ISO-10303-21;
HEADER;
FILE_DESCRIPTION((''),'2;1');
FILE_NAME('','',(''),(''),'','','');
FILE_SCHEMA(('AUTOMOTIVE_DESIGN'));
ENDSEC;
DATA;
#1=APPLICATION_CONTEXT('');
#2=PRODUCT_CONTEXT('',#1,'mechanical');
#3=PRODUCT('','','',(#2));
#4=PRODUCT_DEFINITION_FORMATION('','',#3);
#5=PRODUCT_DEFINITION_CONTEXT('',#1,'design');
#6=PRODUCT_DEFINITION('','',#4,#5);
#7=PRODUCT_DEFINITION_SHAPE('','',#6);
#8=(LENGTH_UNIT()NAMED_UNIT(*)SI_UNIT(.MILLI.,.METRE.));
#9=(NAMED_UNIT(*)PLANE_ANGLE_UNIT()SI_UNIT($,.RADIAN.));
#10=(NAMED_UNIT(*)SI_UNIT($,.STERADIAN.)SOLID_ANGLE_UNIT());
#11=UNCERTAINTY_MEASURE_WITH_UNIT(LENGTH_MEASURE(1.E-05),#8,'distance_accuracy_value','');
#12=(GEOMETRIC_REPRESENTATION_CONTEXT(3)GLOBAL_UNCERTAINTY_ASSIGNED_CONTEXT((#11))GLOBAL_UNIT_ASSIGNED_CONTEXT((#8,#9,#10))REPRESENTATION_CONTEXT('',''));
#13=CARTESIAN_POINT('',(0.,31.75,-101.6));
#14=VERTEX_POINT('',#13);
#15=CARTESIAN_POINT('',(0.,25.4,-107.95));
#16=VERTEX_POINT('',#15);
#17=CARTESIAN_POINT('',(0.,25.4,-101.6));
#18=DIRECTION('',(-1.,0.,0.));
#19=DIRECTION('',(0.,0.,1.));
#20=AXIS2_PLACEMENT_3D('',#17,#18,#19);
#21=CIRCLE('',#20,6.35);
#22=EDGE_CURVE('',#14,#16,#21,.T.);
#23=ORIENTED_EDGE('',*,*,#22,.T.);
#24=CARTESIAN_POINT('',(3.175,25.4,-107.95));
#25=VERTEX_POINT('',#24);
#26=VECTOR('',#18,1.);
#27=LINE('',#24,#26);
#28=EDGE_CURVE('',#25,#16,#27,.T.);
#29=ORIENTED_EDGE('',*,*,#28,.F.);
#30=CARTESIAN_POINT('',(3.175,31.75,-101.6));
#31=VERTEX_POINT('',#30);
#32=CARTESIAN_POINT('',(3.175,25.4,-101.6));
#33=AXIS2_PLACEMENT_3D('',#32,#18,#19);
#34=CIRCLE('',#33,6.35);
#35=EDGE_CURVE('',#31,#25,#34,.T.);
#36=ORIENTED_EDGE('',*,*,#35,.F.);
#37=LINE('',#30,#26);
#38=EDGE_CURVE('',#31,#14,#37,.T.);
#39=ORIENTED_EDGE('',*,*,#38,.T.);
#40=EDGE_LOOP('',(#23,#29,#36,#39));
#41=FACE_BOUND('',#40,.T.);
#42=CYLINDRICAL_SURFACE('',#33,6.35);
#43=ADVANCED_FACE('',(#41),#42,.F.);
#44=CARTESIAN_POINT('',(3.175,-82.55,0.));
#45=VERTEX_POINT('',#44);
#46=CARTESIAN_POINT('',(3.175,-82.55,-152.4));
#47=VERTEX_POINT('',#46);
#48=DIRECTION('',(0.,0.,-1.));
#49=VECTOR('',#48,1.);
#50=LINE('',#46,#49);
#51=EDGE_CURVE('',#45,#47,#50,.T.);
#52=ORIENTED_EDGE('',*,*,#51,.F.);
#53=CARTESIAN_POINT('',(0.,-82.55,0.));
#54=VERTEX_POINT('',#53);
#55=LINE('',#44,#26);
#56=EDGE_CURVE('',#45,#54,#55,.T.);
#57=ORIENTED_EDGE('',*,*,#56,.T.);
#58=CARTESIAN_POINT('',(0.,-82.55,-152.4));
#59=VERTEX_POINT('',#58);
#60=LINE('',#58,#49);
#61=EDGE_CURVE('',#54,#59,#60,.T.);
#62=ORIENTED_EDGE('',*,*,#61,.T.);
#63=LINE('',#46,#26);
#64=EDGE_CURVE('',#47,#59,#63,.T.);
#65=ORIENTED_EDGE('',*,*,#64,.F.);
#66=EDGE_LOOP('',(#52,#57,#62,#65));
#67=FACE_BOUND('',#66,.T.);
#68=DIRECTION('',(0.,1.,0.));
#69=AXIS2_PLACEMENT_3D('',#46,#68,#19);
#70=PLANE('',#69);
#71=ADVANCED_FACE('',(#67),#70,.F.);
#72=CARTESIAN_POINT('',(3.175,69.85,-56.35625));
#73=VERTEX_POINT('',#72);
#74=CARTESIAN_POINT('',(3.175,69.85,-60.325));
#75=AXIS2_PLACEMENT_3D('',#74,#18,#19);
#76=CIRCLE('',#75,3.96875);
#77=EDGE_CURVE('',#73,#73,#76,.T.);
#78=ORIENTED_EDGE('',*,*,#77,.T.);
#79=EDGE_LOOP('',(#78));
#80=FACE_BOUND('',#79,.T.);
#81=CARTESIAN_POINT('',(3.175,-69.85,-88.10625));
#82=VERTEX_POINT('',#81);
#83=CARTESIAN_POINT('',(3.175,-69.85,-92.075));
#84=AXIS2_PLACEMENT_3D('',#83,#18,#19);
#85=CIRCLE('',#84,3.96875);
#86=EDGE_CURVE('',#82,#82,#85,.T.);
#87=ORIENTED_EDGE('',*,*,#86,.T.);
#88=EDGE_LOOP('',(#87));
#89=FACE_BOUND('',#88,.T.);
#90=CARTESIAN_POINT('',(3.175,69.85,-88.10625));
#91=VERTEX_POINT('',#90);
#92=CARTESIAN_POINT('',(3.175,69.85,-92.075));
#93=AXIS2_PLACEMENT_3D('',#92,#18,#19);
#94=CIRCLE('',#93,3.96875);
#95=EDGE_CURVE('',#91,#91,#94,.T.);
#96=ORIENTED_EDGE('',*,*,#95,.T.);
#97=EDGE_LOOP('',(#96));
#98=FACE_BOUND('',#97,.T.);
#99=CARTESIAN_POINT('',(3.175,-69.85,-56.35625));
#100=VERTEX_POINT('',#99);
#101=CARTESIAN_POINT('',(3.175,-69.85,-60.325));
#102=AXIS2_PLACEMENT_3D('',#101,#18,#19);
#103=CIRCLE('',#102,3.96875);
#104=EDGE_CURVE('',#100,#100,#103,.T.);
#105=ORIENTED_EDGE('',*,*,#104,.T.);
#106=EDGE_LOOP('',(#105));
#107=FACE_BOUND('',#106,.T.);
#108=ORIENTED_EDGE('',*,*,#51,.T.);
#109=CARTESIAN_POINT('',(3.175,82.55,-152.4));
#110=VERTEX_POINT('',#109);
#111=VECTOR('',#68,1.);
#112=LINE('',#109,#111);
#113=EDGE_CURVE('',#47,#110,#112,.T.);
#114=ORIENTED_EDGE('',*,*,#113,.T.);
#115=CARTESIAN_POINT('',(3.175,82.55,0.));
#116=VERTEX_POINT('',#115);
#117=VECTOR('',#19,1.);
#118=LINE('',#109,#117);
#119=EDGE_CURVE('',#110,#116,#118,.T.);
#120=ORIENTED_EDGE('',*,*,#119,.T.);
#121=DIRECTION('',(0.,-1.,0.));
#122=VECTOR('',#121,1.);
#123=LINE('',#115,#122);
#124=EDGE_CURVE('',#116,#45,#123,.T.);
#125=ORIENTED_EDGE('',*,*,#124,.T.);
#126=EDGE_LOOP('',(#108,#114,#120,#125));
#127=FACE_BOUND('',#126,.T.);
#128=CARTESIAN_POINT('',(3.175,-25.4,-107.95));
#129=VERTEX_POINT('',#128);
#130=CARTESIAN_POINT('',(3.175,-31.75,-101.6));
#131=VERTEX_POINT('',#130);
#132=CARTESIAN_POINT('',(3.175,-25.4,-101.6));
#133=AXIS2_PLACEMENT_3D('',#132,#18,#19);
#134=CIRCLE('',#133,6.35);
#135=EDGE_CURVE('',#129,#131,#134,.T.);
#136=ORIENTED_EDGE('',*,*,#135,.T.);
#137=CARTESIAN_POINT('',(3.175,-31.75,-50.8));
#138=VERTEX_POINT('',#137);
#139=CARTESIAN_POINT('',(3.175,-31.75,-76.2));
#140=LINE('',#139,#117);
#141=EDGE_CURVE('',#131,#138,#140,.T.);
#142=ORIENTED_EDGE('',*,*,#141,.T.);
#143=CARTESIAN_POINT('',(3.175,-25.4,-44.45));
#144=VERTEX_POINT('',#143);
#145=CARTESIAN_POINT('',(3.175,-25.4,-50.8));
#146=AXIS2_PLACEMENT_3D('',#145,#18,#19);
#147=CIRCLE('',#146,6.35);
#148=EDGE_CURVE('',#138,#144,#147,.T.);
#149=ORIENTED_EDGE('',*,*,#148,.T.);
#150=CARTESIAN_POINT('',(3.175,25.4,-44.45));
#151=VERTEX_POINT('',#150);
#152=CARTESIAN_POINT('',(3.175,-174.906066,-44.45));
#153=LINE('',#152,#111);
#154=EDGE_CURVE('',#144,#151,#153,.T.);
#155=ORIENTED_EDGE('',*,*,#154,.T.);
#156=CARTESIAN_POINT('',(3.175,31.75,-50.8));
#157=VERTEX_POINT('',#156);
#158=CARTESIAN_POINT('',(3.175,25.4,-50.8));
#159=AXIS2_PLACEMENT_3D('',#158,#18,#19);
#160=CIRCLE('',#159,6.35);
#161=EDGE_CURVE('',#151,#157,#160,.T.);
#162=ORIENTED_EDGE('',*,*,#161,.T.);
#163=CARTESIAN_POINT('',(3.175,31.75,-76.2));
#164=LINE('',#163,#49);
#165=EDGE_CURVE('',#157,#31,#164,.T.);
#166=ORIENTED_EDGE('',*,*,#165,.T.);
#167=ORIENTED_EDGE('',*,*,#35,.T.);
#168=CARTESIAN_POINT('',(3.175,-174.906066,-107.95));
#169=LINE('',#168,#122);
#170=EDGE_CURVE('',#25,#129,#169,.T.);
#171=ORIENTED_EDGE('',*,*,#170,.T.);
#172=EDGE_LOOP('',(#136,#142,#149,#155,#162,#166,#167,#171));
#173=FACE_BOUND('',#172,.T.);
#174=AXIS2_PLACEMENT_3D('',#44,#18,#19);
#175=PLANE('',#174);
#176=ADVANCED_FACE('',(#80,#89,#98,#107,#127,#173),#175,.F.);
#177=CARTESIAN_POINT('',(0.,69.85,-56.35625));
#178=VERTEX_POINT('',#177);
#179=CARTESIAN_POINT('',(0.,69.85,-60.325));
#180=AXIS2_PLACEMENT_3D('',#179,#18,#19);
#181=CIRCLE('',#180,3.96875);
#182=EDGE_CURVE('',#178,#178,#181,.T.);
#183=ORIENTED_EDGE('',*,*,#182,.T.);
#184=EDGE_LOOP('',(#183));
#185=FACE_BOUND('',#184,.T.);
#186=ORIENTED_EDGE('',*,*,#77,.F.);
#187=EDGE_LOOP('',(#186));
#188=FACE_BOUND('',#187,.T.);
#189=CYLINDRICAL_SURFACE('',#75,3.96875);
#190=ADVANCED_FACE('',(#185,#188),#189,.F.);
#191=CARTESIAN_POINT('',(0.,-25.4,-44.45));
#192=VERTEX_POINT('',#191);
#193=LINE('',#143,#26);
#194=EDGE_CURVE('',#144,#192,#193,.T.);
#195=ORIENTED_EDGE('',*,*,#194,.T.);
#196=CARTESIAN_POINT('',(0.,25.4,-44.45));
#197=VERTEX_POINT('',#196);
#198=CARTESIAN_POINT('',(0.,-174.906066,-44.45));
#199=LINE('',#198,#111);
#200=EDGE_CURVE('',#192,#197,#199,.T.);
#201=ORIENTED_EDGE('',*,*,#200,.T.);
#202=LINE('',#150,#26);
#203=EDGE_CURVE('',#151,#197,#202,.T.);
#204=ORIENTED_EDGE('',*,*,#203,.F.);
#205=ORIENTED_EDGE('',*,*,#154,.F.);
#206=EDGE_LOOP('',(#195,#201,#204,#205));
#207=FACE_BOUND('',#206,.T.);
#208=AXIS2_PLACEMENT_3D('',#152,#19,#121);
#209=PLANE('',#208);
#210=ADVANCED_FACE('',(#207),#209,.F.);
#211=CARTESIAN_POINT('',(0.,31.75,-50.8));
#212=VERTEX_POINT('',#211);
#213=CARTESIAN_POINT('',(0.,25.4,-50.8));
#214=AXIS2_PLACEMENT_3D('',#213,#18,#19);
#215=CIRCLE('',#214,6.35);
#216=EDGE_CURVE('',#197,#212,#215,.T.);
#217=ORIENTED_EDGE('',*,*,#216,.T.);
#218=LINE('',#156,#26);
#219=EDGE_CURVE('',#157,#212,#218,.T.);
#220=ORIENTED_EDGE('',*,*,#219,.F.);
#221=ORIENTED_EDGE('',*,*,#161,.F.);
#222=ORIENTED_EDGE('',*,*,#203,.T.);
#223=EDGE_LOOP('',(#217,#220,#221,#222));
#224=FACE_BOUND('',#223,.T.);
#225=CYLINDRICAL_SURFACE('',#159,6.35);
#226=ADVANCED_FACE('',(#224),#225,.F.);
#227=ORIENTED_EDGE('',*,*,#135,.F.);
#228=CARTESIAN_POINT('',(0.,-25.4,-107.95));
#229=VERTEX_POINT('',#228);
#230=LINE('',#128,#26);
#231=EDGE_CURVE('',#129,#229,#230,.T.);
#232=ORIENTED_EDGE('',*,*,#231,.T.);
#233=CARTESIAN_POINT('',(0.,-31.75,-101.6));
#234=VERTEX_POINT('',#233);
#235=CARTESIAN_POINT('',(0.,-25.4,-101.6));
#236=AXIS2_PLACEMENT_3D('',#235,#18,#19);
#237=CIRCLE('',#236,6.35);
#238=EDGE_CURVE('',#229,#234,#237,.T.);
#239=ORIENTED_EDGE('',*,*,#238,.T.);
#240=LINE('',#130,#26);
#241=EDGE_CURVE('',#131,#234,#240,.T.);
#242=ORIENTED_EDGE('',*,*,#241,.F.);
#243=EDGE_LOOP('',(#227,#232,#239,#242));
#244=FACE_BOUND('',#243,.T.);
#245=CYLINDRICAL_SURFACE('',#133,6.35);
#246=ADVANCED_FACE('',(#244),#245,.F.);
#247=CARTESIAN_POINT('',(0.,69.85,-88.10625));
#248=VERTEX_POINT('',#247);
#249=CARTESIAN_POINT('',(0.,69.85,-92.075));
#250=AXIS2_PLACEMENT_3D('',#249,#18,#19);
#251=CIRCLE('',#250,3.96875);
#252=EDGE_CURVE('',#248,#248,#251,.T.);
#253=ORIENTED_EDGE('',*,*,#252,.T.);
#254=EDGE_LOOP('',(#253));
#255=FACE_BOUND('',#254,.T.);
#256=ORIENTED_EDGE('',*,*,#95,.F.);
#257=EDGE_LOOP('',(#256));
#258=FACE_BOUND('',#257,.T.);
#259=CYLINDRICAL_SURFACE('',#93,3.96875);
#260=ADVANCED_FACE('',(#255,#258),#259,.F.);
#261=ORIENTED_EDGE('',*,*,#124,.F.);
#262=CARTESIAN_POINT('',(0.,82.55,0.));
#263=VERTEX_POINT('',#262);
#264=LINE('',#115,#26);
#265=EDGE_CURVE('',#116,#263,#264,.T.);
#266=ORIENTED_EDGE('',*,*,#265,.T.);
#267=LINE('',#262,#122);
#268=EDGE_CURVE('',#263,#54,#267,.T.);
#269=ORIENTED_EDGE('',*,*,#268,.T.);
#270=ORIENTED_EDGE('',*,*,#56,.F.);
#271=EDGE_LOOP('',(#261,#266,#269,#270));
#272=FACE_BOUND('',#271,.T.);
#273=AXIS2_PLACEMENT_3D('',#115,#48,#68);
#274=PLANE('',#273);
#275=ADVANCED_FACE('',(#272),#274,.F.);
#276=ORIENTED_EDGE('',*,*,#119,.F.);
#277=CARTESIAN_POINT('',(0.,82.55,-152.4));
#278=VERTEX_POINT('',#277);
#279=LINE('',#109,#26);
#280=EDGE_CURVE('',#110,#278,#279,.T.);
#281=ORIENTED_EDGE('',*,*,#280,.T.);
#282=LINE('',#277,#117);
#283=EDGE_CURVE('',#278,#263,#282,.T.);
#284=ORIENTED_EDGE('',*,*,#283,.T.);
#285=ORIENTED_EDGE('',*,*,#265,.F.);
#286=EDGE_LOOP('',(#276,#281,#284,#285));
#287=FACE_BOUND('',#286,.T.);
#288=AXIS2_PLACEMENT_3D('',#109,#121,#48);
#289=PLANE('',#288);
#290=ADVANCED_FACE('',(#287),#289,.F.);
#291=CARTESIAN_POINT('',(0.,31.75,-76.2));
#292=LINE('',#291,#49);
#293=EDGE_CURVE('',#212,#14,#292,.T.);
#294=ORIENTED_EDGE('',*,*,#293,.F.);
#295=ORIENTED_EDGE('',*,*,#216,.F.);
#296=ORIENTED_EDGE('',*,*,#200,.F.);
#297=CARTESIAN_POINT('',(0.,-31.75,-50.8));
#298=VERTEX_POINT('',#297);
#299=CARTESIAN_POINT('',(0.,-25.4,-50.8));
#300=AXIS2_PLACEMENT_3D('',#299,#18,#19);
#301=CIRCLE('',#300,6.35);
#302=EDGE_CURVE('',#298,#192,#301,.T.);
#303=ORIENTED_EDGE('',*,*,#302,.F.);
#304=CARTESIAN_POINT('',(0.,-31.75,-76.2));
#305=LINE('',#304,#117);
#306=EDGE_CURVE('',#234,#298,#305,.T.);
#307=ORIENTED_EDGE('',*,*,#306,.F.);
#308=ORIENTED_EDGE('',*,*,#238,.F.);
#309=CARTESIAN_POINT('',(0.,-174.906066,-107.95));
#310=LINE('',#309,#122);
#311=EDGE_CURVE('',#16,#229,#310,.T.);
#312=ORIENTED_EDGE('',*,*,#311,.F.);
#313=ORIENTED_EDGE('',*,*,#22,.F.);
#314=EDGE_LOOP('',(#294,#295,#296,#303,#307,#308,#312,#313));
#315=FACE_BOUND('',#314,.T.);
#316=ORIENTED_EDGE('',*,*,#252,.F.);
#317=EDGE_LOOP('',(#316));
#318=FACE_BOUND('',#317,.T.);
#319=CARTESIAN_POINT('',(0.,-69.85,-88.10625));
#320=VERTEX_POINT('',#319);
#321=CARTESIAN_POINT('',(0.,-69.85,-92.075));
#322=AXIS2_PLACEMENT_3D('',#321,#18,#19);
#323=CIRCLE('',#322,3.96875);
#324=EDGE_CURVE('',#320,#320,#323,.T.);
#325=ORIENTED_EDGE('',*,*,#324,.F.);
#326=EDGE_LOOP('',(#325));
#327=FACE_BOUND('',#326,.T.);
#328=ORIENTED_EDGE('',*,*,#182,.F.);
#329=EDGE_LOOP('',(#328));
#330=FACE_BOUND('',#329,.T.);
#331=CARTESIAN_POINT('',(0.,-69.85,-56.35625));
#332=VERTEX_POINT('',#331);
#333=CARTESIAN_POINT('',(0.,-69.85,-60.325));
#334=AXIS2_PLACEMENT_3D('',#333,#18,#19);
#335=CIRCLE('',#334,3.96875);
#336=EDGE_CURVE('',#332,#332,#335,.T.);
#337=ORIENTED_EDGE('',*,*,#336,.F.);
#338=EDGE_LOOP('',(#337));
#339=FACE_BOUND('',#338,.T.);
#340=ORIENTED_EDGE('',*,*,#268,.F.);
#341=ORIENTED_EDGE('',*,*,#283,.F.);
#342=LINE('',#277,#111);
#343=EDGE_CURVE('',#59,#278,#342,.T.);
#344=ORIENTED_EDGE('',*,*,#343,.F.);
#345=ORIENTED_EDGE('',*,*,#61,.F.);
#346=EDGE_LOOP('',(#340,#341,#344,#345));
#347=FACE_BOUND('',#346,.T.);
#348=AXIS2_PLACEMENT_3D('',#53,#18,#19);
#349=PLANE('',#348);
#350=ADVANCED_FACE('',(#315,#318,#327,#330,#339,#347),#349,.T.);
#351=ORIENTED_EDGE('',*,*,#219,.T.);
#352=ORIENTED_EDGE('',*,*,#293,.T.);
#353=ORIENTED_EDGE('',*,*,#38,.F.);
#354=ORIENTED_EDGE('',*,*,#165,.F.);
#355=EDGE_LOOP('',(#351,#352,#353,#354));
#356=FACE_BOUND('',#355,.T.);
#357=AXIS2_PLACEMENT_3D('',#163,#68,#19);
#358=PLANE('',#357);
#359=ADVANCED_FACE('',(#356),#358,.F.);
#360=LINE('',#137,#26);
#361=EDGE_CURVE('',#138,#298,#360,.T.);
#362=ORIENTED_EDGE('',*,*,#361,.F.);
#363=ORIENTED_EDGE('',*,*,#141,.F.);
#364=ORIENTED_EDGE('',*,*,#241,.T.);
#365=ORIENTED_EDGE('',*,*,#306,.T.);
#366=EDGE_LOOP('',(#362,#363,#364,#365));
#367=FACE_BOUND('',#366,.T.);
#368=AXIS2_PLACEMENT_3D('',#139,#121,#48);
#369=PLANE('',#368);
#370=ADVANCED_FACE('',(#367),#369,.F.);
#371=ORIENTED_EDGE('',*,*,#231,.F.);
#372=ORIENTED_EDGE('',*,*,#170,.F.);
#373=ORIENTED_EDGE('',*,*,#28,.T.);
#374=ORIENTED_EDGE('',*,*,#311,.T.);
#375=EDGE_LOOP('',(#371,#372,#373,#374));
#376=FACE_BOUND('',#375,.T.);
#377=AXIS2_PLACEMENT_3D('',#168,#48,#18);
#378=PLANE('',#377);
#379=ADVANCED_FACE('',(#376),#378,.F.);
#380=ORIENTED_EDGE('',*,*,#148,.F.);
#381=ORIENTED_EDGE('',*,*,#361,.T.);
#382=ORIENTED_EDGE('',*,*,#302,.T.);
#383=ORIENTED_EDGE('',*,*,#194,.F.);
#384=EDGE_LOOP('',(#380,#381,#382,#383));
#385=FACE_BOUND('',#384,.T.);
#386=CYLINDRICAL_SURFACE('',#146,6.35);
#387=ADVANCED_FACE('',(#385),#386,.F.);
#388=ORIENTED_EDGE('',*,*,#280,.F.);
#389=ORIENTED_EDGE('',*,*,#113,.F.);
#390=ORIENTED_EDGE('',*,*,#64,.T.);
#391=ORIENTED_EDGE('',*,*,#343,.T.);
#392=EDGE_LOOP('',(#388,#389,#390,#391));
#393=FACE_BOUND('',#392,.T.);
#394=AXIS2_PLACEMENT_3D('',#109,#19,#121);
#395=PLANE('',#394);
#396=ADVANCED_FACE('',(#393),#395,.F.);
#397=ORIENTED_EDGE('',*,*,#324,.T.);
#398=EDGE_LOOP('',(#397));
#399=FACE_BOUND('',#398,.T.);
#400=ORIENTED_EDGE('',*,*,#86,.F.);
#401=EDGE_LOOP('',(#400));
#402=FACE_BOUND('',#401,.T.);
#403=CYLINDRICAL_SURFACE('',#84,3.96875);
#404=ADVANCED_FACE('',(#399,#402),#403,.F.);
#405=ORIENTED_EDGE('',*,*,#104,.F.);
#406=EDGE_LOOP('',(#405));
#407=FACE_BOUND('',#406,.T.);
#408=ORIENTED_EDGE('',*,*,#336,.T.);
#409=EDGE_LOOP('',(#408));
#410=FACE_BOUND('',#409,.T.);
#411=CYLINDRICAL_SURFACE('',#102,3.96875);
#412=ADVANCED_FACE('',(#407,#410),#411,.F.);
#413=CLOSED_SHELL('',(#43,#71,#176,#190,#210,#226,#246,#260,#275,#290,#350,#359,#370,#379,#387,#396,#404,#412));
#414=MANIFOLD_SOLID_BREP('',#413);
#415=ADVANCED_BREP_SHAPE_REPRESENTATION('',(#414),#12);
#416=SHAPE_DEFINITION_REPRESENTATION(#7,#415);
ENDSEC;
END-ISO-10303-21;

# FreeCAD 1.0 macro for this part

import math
import FreeCAD as App
import Part
import Sketcher

V = App.Vector
Q = App.Units.Quantity

doc = App.newDocument("Part")
body = doc.addObject("PartDesign::Body", "Body")

sketch1 = body.newObject("Sketcher::SketchObject", "Sketch")
sketch1.AttachmentSupport = (doc.getObject("YZ_Plane"), [""])
sketch1.MapMode = "FlatFace"
sketch1.addGeometry(Part.LineSegment(V(83, 0, 0), V(-83, 0, 0)), False)
sketch1.addGeometry(Part.LineSegment(V(-83, 0, 0), V(-83, -152, 0)), False)
sketch1.addGeometry(Part.LineSegment(V(-83, -152, 0), V(83, -152, 0)), False)
sketch1.addGeometry(Part.LineSegment(V(83, -152, 0), V(83, 0, 0)), False)
sketch1.addConstraint(Sketcher.Constraint("Coincident", 0, 2, 1, 1))
sketch1.addConstraint(Sketcher.Constraint("Coincident", 1, 2, 2, 1))
sketch1.addConstraint(Sketcher.Constraint("Coincident", 2, 2, 3, 1))
sketch1.addConstraint(Sketcher.Constraint("Coincident", 3, 2, 0, 1))
sketch1.addConstraint(Sketcher.Constraint("Horizontal", 0))
sketch1.addConstraint(Sketcher.Constraint("Vertical", 1))
sketch1.addConstraint(Sketcher.Constraint("Horizontal", 2))
sketch1.addConstraint(Sketcher.Constraint("Vertical", 3))
sketch1.addConstraint(Sketcher.Constraint("Symmetric", 0, 2, 3, 2, -1, 1))
sketch1.addConstraint(Sketcher.Constraint("DistanceY", 1, 2, 1, 1, Q("6 in")))
sketch1.addConstraint(Sketcher.Constraint("DistanceX", 0, 2, 0, 1, Q("6.5 in")))
pad1 = body.newObject("PartDesign::Pad", "Pad")
pad1.Profile = sketch1
pad1.Length = Q("0.125 in")

sketch2 = body.newObject("Sketcher::SketchObject", "Sketch001")
sketch2.AttachmentSupport = (doc.getObject("YZ_Plane"), [""])
sketch2.MapMode = "FlatFace"
sketch2.addGeometry(Part.LineSegment(V(25, -108, 0), V(-25, -108, 0)), False)
sketch2.addGeometry(Part.ArcOfCircle(Part.Circle(V(-25, -102, 0), V(0, 0, 1), 6), math.radians(180), math.radians(270)), False)
sketch2.addGeometry(Part.LineSegment(V(-32, -102, 0), V(-32, -51, 0)), False)
sketch2.addGeometry(Part.ArcOfCircle(Part.Circle(V(-25, -51, 0), V(0, 0, 1), 6), math.radians(90), math.radians(180)), False)
sketch2.addGeometry(Part.LineSegment(V(-25, -44, 0), V(25, -44, 0)), False)
sketch2.addGeometry(Part.ArcOfCircle(Part.Circle(V(25, -51, 0), V(0, 0, 1), 6), math.radians(0), math.radians(90)), False)
sketch2.addGeometry(Part.LineSegment(V(32, -51, 0), V(32, -102, 0)), False)
sketch2.addGeometry(Part.ArcOfCircle(Part.Circle(V(25, -102, 0), V(0, 0, 1), 6), math.radians(-90), math.radians(0)), False)
sketch2.addConstraint(Sketcher.Constraint("Tangent", 0, 2, 1, 2))
sketch2.addConstraint(Sketcher.Constraint("Tangent", 1, 1, 2, 1))
sketch2.addConstraint(Sketcher.Constraint("Tangent", 2, 2, 3, 2))
sketch2.addConstraint(Sketcher.Constraint("Tangent", 3, 1, 4, 1))
sketch2.addConstraint(Sketcher.Constraint("Tangent", 4, 2, 5, 2))
sketch2.addConstraint(Sketcher.Constraint("Tangent", 5, 1, 6, 1))
sketch2.addConstraint(Sketcher.Constraint("Tangent", 6, 2, 7, 2))
sketch2.addConstraint(Sketcher.Constraint("Tangent", 7, 1, 0, 1))
sketch2.addConstraint(Sketcher.Constraint("Horizontal", 0))
sketch2.addConstraint(Sketcher.Constraint("Vertical", 2))
sketch2.addConstraint(Sketcher.Constraint("Horizontal", 4))
sketch2.addConstraint(Sketcher.Constraint("Vertical", 6))
sketch2.addConstraint(Sketcher.Constraint("Equal", 1, 3))
sketch2.addConstraint(Sketcher.Constraint("Equal", 3, 5))
sketch2.addConstraint(Sketcher.Constraint("Equal", 5, 7))
sketch2.addConstraint(Sketcher.Constraint("Equal", 4, 2))
sketch2.addConstraint(Sketcher.Constraint("DistanceX", 0, 2, 0, 1, Q("2 in")))
sketch2.addConstraint(Sketcher.Constraint("Radius", 1, Q("0.25 in")))
sketch2.addConstraint(Sketcher.Constraint("DistanceX", 1, 3, -1, 1, Q("1 in")))
sketch2.addConstraint(Sketcher.Constraint("DistanceY", 1, 3, -1, 1, Q("4 in")))
pocket1 = body.newObject("PartDesign::Pocket", "Pocket")
pocket1.Profile = sketch2
pocket1.Type = "ThroughAll"
pocket1.Reversed = True

sketch3 = body.newObject("Sketcher::SketchObject", "Sketch002")
sketch3.AttachmentSupport = (doc.getObject("YZ_Plane"), [""])
sketch3.MapMode = "FlatFace"
sketch3.addGeometry(Part.Circle(V(69.8, -60.3, 0), V(0, 0, 1), 4), False)
sketch3.addGeometry(Part.Circle(V(69.8, -92.1, 0), V(0, 0, 1), 4), False)
sketch3.addGeometry(Part.Circle(V(-69.8, -92.1, 0), V(0, 0, 1), 4), False)
sketch3.addGeometry(Part.Circle(V(-69.8, -60.3, 0), V(0, 0, 1), 4), False)
sketch3.addConstraint(Sketcher.Constraint("Equal", 0, 1))
sketch3.addConstraint(Sketcher.Constraint("Equal", 1, 2))
sketch3.addConstraint(Sketcher.Constraint("Equal", 2, 3))
sketch3.addConstraint(Sketcher.Constraint("Symmetric", 1, 3, 2, 3, -2))
sketch3.addConstraint(Sketcher.Constraint("Symmetric", 0, 3, 3, 3, -2))
sketch3.addConstraint(Sketcher.Constraint("Vertical", 0, 3, 1, 3))
sketch3.addConstraint(Sketcher.Constraint("Diameter", 0, Q("0.3125 in")))
sketch3.addConstraint(Sketcher.Constraint("DistanceX", 2, 3, 1, 3, Q("5.5 in")))
sketch3.addConstraint(Sketcher.Constraint("DistanceY", 1, 3, 0, 3, Q("1.25 in")))
sketch3.addConstraint(Sketcher.Constraint("DistanceY", 0, 3, -1, 1, Q("2.375 in")))
pocket2 = body.newObject("PartDesign::Pocket", "Pocket001")
pocket2.Profile = sketch3
pocket2.Type = "ThroughAll"
pocket2.Reversed = True

doc.recompute()
